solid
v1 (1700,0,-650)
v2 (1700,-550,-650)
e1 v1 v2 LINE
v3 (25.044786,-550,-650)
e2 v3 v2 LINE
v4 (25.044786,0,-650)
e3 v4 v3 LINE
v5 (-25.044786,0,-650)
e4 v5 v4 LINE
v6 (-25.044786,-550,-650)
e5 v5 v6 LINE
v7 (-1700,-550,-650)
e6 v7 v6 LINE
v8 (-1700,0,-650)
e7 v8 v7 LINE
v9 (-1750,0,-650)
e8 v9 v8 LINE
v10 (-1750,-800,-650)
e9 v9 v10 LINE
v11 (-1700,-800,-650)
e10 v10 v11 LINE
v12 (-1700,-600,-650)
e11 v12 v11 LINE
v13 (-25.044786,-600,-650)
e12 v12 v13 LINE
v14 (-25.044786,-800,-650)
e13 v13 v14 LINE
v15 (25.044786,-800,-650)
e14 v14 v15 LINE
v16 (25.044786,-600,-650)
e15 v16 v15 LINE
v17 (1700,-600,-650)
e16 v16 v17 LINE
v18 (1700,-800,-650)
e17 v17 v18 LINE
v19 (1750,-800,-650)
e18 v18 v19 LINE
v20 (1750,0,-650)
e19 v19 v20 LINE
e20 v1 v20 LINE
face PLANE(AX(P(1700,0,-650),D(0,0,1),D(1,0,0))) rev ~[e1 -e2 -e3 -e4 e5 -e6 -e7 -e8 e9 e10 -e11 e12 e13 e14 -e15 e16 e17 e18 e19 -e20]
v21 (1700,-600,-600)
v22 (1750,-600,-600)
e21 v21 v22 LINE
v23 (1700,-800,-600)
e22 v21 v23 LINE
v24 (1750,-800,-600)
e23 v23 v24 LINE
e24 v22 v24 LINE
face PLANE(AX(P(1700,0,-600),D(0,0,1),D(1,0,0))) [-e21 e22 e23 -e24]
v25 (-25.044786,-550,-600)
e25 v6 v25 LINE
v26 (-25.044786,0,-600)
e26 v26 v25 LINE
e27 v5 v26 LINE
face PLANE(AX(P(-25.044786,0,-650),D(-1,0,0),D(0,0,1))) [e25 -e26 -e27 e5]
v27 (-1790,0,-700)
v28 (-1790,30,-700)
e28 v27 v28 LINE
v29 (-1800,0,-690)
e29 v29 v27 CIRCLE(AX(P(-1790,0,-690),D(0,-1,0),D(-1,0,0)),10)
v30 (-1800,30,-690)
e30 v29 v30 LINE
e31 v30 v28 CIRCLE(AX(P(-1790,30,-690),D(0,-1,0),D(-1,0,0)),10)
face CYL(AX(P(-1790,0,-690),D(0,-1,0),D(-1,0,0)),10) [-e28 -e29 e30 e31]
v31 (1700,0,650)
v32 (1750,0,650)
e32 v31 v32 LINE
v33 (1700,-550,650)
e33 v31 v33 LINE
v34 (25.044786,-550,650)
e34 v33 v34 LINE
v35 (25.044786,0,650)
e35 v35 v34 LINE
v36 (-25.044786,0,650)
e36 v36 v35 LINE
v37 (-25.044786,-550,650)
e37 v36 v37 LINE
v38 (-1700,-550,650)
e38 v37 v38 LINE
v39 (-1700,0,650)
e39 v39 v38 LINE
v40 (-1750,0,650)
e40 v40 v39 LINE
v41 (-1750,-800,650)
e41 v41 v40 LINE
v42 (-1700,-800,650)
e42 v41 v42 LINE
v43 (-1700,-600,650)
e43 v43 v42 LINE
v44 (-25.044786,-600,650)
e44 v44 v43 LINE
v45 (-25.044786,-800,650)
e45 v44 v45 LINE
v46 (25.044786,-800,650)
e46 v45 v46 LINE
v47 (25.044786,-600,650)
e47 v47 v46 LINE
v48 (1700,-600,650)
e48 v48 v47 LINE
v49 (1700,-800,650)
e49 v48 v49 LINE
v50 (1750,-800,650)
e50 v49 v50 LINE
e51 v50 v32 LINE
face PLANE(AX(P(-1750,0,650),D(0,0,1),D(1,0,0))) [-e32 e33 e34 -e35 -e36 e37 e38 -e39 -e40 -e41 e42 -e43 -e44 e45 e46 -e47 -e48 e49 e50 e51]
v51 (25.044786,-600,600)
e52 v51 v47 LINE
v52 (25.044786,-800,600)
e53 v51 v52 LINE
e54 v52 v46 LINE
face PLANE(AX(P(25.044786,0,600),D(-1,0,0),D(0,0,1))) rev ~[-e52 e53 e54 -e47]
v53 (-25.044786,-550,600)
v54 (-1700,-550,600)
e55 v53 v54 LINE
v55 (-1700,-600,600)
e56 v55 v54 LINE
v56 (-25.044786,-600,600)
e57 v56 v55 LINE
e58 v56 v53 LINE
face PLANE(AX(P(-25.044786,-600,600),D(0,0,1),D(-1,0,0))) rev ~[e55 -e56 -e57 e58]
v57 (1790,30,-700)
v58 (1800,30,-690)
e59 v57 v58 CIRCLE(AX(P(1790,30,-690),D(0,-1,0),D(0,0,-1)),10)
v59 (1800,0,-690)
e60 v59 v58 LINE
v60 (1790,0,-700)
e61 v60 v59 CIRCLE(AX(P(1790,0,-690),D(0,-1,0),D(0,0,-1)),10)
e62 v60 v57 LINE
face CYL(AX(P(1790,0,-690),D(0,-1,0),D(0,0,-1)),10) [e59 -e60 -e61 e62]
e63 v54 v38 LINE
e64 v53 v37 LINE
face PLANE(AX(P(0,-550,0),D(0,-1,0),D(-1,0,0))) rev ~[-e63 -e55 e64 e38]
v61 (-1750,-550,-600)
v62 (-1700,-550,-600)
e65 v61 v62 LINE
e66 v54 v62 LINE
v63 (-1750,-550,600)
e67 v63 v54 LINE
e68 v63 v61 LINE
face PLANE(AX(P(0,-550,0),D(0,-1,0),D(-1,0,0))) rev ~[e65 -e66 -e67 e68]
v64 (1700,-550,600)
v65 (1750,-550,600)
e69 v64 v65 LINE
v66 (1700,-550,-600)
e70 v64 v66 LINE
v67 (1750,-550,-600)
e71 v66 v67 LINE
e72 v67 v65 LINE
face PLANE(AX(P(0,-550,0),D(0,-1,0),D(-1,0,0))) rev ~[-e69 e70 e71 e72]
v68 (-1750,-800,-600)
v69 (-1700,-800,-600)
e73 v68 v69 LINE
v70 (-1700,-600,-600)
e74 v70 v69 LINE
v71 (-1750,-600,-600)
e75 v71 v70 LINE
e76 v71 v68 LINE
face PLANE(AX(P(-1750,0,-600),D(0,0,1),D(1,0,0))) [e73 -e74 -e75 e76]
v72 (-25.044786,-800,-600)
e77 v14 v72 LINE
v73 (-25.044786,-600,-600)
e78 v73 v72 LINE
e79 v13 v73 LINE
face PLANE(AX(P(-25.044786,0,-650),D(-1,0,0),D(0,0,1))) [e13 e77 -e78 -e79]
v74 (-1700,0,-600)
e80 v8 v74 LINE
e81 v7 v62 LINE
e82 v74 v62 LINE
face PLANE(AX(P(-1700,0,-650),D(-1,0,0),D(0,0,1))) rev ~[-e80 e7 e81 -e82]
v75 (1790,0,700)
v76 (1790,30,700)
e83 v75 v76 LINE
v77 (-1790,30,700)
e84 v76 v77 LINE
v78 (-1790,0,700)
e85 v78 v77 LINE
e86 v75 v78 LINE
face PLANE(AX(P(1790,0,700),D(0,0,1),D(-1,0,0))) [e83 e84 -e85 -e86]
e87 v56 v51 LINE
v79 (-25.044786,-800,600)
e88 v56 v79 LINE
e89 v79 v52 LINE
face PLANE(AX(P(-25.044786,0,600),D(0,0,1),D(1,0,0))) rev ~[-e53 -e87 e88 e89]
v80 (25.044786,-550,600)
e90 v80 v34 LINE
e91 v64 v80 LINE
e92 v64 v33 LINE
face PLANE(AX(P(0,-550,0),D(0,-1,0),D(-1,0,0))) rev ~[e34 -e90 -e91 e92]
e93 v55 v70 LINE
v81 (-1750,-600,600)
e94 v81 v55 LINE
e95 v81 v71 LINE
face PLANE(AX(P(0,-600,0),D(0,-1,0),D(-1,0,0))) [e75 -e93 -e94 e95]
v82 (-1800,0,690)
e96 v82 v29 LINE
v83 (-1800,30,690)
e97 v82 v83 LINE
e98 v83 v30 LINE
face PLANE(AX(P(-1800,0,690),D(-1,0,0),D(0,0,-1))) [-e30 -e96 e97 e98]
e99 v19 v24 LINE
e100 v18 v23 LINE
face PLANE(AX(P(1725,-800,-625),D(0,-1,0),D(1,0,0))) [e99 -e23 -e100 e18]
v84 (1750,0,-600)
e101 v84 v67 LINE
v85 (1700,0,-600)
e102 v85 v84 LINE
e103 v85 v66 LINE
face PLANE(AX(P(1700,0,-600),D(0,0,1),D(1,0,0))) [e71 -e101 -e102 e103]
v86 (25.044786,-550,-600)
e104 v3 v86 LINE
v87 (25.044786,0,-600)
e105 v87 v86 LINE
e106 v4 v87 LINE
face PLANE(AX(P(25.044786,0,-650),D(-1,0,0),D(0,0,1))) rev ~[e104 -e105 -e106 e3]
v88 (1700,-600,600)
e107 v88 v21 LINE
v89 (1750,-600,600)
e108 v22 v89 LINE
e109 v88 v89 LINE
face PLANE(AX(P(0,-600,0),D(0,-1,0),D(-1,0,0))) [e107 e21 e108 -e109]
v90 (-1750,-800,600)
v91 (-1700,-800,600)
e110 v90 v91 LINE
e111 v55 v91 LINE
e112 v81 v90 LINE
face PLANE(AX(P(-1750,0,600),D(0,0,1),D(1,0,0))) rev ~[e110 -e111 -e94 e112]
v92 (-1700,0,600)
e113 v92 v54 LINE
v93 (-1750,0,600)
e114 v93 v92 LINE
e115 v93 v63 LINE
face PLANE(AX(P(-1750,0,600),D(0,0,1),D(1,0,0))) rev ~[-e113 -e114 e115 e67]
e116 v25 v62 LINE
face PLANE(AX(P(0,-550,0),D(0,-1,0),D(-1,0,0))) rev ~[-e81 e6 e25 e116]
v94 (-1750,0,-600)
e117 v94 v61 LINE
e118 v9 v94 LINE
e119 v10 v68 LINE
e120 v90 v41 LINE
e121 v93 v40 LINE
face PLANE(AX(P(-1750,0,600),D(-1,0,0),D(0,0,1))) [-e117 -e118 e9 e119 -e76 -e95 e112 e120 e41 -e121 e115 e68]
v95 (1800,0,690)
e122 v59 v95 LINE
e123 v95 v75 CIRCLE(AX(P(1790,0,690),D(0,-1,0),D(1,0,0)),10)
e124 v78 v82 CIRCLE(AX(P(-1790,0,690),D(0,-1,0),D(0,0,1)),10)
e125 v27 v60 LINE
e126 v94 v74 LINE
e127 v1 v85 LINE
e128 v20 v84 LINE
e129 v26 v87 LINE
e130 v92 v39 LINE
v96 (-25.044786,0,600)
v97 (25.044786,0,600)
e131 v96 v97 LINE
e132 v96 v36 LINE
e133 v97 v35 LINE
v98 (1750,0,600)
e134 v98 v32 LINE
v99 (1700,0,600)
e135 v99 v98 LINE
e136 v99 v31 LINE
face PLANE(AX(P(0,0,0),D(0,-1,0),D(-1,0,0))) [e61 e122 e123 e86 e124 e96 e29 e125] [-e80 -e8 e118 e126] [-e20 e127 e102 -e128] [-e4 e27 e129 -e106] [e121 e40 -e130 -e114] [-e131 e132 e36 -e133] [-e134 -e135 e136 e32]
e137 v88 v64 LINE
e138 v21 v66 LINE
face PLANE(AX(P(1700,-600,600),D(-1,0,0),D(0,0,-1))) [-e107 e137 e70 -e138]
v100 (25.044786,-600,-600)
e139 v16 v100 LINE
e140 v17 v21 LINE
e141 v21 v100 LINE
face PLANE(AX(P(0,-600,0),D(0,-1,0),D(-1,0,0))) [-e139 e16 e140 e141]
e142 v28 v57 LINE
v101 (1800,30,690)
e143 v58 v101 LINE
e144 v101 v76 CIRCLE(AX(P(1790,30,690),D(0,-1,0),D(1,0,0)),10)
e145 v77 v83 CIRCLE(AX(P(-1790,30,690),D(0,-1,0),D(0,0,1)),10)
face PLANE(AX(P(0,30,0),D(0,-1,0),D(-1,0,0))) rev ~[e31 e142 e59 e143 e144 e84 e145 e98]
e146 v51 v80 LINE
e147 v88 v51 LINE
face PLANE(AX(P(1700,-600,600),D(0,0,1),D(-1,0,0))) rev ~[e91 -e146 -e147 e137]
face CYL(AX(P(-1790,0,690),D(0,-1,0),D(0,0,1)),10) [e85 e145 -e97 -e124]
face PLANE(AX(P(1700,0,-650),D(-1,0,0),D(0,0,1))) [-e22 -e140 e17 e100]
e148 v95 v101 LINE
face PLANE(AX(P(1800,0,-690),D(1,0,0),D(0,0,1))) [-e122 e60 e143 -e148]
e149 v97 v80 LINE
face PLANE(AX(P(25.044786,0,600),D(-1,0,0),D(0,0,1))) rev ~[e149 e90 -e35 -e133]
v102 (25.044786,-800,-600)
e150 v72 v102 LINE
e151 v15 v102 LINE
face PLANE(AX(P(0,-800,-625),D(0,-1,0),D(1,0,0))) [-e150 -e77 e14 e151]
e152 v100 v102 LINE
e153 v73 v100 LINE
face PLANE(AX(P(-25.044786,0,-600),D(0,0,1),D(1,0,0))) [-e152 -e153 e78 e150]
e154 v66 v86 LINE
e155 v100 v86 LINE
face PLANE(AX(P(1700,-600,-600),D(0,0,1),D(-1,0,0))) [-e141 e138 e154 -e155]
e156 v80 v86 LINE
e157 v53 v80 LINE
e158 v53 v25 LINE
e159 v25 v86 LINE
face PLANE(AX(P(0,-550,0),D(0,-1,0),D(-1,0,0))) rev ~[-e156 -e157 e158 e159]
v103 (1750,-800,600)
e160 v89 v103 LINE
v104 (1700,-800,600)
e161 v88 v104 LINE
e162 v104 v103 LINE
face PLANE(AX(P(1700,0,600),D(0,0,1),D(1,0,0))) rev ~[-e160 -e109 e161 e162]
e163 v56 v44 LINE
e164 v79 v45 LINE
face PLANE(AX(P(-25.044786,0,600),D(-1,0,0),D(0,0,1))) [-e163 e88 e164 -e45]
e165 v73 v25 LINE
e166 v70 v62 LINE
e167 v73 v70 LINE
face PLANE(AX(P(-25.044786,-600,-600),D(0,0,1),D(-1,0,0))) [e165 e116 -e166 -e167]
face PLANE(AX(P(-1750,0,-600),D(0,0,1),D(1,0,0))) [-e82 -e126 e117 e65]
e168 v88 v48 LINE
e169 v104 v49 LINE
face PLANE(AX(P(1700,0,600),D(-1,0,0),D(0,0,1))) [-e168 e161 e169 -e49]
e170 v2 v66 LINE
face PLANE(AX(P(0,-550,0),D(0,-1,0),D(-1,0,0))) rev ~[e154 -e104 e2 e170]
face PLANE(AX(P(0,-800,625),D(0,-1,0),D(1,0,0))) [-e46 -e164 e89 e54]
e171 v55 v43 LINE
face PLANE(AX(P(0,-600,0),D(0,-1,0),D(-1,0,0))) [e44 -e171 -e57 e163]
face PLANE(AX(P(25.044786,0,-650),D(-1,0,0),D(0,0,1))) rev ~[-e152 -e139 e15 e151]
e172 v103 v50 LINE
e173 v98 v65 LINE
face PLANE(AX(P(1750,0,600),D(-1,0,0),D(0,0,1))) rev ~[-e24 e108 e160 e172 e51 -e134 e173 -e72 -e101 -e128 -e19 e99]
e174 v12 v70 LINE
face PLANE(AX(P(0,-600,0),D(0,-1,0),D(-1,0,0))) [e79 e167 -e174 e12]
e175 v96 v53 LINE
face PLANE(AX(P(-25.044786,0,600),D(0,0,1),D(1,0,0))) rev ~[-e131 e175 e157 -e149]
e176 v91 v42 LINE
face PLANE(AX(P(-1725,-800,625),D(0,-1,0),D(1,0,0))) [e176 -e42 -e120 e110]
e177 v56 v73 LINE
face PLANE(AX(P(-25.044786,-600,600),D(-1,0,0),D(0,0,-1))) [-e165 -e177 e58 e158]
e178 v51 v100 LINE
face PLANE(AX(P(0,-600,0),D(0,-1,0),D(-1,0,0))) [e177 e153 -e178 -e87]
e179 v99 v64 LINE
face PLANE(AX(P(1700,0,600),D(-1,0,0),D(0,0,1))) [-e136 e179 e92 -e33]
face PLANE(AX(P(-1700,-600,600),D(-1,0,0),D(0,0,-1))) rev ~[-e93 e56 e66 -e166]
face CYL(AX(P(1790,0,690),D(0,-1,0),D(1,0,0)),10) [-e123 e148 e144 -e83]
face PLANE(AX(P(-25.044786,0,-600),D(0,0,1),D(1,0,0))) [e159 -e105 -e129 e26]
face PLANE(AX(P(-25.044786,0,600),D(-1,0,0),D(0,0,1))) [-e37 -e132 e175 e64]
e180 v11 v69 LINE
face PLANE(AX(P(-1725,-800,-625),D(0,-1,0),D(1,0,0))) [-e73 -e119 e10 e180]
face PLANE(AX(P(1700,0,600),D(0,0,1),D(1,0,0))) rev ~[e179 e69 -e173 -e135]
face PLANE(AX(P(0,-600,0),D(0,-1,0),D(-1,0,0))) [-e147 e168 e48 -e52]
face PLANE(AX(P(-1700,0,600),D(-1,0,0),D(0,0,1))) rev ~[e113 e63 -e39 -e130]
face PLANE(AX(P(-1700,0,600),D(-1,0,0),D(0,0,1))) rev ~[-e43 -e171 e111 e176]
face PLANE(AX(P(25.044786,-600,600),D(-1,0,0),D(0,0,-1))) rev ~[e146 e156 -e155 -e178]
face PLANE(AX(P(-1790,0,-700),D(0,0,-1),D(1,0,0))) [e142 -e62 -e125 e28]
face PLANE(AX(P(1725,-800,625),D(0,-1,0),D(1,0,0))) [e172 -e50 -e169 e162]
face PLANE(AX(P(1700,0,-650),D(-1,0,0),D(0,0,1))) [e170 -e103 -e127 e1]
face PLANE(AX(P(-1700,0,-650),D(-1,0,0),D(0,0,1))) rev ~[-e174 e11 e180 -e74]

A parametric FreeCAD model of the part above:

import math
import FreeCAD as App
import Part
import Sketcher
from FreeCAD import Vector
Q = App.Units.Quantity

doc = App.newDocument("Part")
body = doc.addObject("PartDesign::Body", "Body")

sketch1 = body.newObject("Sketcher::SketchObject", "Sketch")
sketch1.AttachmentSupport = (doc.getObject("XZ_Plane"), [""])
sketch1.MapMode = "FlatFace"
sketch1.addGeometry([
    Part.LineSegment(Vector(-1790, 700, 0), Vector(1790, 700, 0)),
    Part.ArcOfCircle(Part.Circle(Vector(1790, 690, 0), Vector(0, 0, 1), 10), math.radians(0), math.radians(90)),
    Part.LineSegment(Vector(1800, 690, 0), Vector(1800, -690, 0)),
    Part.ArcOfCircle(Part.Circle(Vector(1790, -690, 0), Vector(0, 0, 1), 10), math.radians(-90), math.radians(0)),
    Part.LineSegment(Vector(1790, -700, 0), Vector(-1790, -700, 0)),
    Part.ArcOfCircle(Part.Circle(Vector(-1790, -690, 0), Vector(0, 0, 1), 10), math.radians(180), math.radians(270)),
    Part.LineSegment(Vector(-1800, -690, 0), Vector(-1800, 690, 0)),
    Part.ArcOfCircle(Part.Circle(Vector(-1790, 690, 0), Vector(0, 0, 1), 10), math.radians(90), math.radians(180)),
], False)
sketch1.addConstraint([
    Sketcher.Constraint("Tangent", 0, 2, 1, 2),
    Sketcher.Constraint("Tangent", 1, 1, 2, 1),
    Sketcher.Constraint("Tangent", 2, 2, 3, 2),
    Sketcher.Constraint("Tangent", 3, 1, 4, 1),
    Sketcher.Constraint("Tangent", 4, 2, 5, 2),
    Sketcher.Constraint("Tangent", 5, 1, 6, 1),
    Sketcher.Constraint("Tangent", 6, 2, 7, 2),
    Sketcher.Constraint("Tangent", 7, 1, 0, 1),
    Sketcher.Constraint("Horizontal", 0),
    Sketcher.Constraint("Vertical", 2),
    Sketcher.Constraint("Horizontal", 4),
    Sketcher.Constraint("Vertical", 6),
    Sketcher.Constraint("Equal", 1, 3),
    Sketcher.Constraint("Equal", 3, 5),
    Sketcher.Constraint("Equal", 5, 7),
    Sketcher.Constraint("Symmetric", 1, 3, 5, 3, -1, 1),
    Sketcher.Constraint("Radius", 1, Q("10 mm")),
    Sketcher.Constraint("DistanceX", 0, 1, 0, 2, Q("3580 mm")),
    Sketcher.Constraint("DistanceY", 2, 2, 2, 1, Q("1380 mm")),
])
pad1 = body.newObject("PartDesign::Pad", "Pad")
pad1.Profile = sketch1
pad1.Length = 30
pad1.Reversed = True

sketch2 = body.newObject("Sketcher::SketchObject", "Sketch001")
sketch2.AttachmentSupport = (doc.getObject("XZ_Plane"), [""])
sketch2.MapMode = "FlatFace"
sketch2.addGeometry([
    Part.LineSegment(Vector(-1750, 650, 0), Vector(-1750, 600, 0)),
    Part.LineSegment(Vector(-1750, 600, 0), Vector(-1700, 600, 0)),
    Part.LineSegment(Vector(-1700, 600, 0), Vector(-1700, 650, 0)),
    Part.LineSegment(Vector(-1700, 650, 0), Vector(-1750, 650, 0)),
    Part.LineSegment(Vector(-1750, -600, 0), Vector(-1750, -650, 0)),
    Part.LineSegment(Vector(-1750, -650, 0), Vector(-1700, -650, 0)),
    Part.LineSegment(Vector(-1700, -650, 0), Vector(-1700, -600, 0)),
    Part.LineSegment(Vector(-1700, -600, 0), Vector(-1750, -600, 0)),
    Part.LineSegment(Vector(1700, -600, 0), Vector(1700, -650, 0)),
    Part.LineSegment(Vector(1700, -650, 0), Vector(1750, -650, 0)),
    Part.LineSegment(Vector(1750, -650, 0), Vector(1750, -600, 0)),
    Part.LineSegment(Vector(1750, -600, 0), Vector(1700, -600, 0)),
    Part.LineSegment(Vector(1700, 650, 0), Vector(1700, 600, 0)),
    Part.LineSegment(Vector(1700, 600, 0), Vector(1750, 600, 0)),
    Part.LineSegment(Vector(1750, 600, 0), Vector(1750, 650, 0)),
    Part.LineSegment(Vector(1750, 650, 0), Vector(1700, 650, 0)),
    Part.LineSegment(Vector(-25, -600, 0), Vector(-25, -650, 0)),
    Part.LineSegment(Vector(-25, -650, 0), Vector(25, -650, 0)),
    Part.LineSegment(Vector(25, -650, 0), Vector(25, -600, 0)),
    Part.LineSegment(Vector(25, -600, 0), Vector(-25, -600, 0)),
    Part.LineSegment(Vector(-25, 650, 0), Vector(-25, 600, 0)),
    Part.LineSegment(Vector(-25, 600, 0), Vector(25, 600, 0)),
    Part.LineSegment(Vector(25, 600, 0), Vector(25, 650, 0)),
    Part.LineSegment(Vector(25, 650, 0), Vector(-25, 650, 0)),
], False)
sketch2.addConstraint([
    Sketcher.Constraint("Coincident", 0, 2, 1, 1),
    Sketcher.Constraint("Coincident", 1, 2, 2, 1),
    Sketcher.Constraint("Coincident", 2, 2, 3, 1),
    Sketcher.Constraint("Coincident", 3, 2, 0, 1),
    Sketcher.Constraint("Coincident", 4, 2, 5, 1),
    Sketcher.Constraint("Coincident", 5, 2, 6, 1),
    Sketcher.Constraint("Coincident", 6, 2, 7, 1),
    Sketcher.Constraint("Coincident", 7, 2, 4, 1),
    Sketcher.Constraint("Coincident", 8, 2, 9, 1),
    Sketcher.Constraint("Coincident", 9, 2, 10, 1),
    Sketcher.Constraint("Coincident", 10, 2, 11, 1),
    Sketcher.Constraint("Coincident", 11, 2, 8, 1),
    Sketcher.Constraint("Coincident", 12, 2, 13, 1),
    Sketcher.Constraint("Coincident", 13, 2, 14, 1),
    Sketcher.Constraint("Coincident", 14, 2, 15, 1),
    Sketcher.Constraint("Coincident", 15, 2, 12, 1),
    Sketcher.Constraint("Coincident", 16, 2, 17, 1),
    Sketcher.Constraint("Coincident", 17, 2, 18, 1),
    Sketcher.Constraint("Coincident", 18, 2, 19, 1),
    Sketcher.Constraint("Coincident", 19, 2, 16, 1),
    Sketcher.Constraint("Coincident", 20, 2, 21, 1),
    Sketcher.Constraint("Coincident", 21, 2, 22, 1),
    Sketcher.Constraint("Coincident", 22, 2, 23, 1),
    Sketcher.Constraint("Coincident", 23, 2, 20, 1),
    Sketcher.Constraint("Vertical", 0),
    Sketcher.Constraint("Horizontal", 1),
    Sketcher.Constraint("Vertical", 2),
    Sketcher.Constraint("Horizontal", 3),
    Sketcher.Constraint("Vertical", 4),
    Sketcher.Constraint("Horizontal", 5),
    Sketcher.Constraint("Vertical", 6),
    Sketcher.Constraint("Horizontal", 7),
    Sketcher.Constraint("Vertical", 8),
    Sketcher.Constraint("Horizontal", 9),
    Sketcher.Constraint("Vertical", 10),
    Sketcher.Constraint("Horizontal", 11),
    Sketcher.Constraint("Vertical", 12),
    Sketcher.Constraint("Horizontal", 13),
    Sketcher.Constraint("Vertical", 14),
    Sketcher.Constraint("Horizontal", 15),
    Sketcher.Constraint("Vertical", 16),
    Sketcher.Constraint("Horizontal", 17),
    Sketcher.Constraint("Vertical", 18),
    Sketcher.Constraint("Horizontal", 19),
    Sketcher.Constraint("Vertical", 20),
    Sketcher.Constraint("Horizontal", 21),
    Sketcher.Constraint("Vertical", 22),
    Sketcher.Constraint("Horizontal", 23),
    Sketcher.Constraint("Symmetric", 2, 2, 8, 2, -1, 1),
    Sketcher.Constraint("Symmetric", 0, 2, 10, 2, -1, 1),
    Sketcher.Constraint("Symmetric", 6, 2, 12, 2, -1, 1),
    Sketcher.Constraint("Symmetric", 4, 2, 14, 2, -1, 1),
    Sketcher.Constraint("Symmetric", 18, 2, 20, 2, -1, 1),
    Sketcher.Constraint("Symmetric", 16, 2, 22, 2, -1, 1),
    Sketcher.Constraint("Symmetric", 5, 2, 8, 2, -2),
    Sketcher.Constraint("Symmetric", 7, 2, 10, 2, -2),
    Sketcher.Constraint("Horizontal", 9, 2, 16, 2),
    Sketcher.Constraint("Horizontal", 11, 2, 18, 2),
    Sketcher.Constraint("Vertical", 19, 2, 20, 2),
    Sketcher.Constraint("Equal", 15, 0),
    Sketcher.Constraint("DistanceX", 1, 1, 1, 2, Q("50 mm")),
    Sketcher.Constraint("DistanceX", 0, 2, -1, 1, Q("1750 mm")),
    Sketcher.Constraint("DistanceY", -1, 1, 0, 2, Q("600 mm")),
    Sketcher.Constraint("DistanceX", 17, 1, 17, 2, Q("50.089571 mm")),
])
pad2 = body.newObject("PartDesign::Pad", "Pad001")
pad2.Profile = sketch2
pad2.Length = 800

sketch3 = body.newObject("Sketcher::SketchObject", "Sketch002")
sketch3.AttachmentSupport = (doc.getObject("XZ_Plane"), [""])
sketch3.MapMode = "FlatFace"
sketch3.AttachmentOffset = App.Placement(Vector(0, 0, 600), App.Rotation())
sketch3.addGeometry([
    Part.LineSegment(Vector(-1750, 650, 0), Vector(-1750, -650, 0)),
    Part.LineSegment(Vector(-1750, -650, 0), Vector(1750, -650, 0)),
    Part.LineSegment(Vector(1750, -650, 0), Vector(1750, 650, 0)),
    Part.LineSegment(Vector(1750, 650, 0), Vector(-1750, 650, 0)),
    Part.LineSegment(Vector(25, 600, 0), Vector(1700, 600, 0)),
    Part.LineSegment(Vector(1700, 600, 0), Vector(1700, -600, 0)),
    Part.LineSegment(Vector(1700, -600, 0), Vector(25, -600, 0)),
    Part.LineSegment(Vector(25, -600, 0), Vector(25, 600, 0)),
    Part.LineSegment(Vector(-1700, 600, 0), Vector(-25, 600, 0)),
    Part.LineSegment(Vector(-25, 600, 0), Vector(-25, -600, 0)),
    Part.LineSegment(Vector(-25, -600, 0), Vector(-1700, -600, 0)),
    Part.LineSegment(Vector(-1700, -600, 0), Vector(-1700, 600, 0)),
], False)
sketch3.addConstraint([
    Sketcher.Constraint("Coincident", 0, 2, 1, 1),
    Sketcher.Constraint("Coincident", 1, 2, 2, 1),
    Sketcher.Constraint("Coincident", 2, 2, 3, 1),
    Sketcher.Constraint("Coincident", 3, 2, 0, 1),
    Sketcher.Constraint("Coincident", 4, 2, 5, 1),
    Sketcher.Constraint("Coincident", 5, 2, 6, 1),
    Sketcher.Constraint("Coincident", 6, 2, 7, 1),
    Sketcher.Constraint("Coincident", 7, 2, 4, 1),
    Sketcher.Constraint("Coincident", 8, 2, 9, 1),
    Sketcher.Constraint("Coincident", 9, 2, 10, 1),
    Sketcher.Constraint("Coincident", 10, 2, 11, 1),
    Sketcher.Constraint("Coincident", 11, 2, 8, 1),
    Sketcher.Constraint("Vertical", 0),
    Sketcher.Constraint("Horizontal", 1),
    Sketcher.Constraint("Vertical", 2),
    Sketcher.Constraint("Horizontal", 3),
    Sketcher.Constraint("Horizontal", 4),
    Sketcher.Constraint("Vertical", 5),
    Sketcher.Constraint("Horizontal", 6),
    Sketcher.Constraint("Vertical", 7),
    Sketcher.Constraint("Horizontal", 8),
    Sketcher.Constraint("Vertical", 9),
    Sketcher.Constraint("Horizontal", 10),
    Sketcher.Constraint("Vertical", 11),
    Sketcher.Constraint("Symmetric", 0, 2, 2, 2, -1, 1),
    Sketcher.Constraint("Symmetric", 6, 2, 8, 2, -1, 1),
    Sketcher.Constraint("Symmetric", 4, 2, 10, 2, -1, 1),
    Sketcher.Constraint("Horizontal", 7, 2, 8, 2),
    Sketcher.Constraint("DistanceX", 1, 1, 1, 2, Q("3500 mm")),
    Sketcher.Constraint("DistanceY", 0, 2, 0, 1, Q("1300 mm")),
    Sketcher.Constraint("DistanceY", 5, 2, 5, 1, Q("1200 mm")),
    Sketcher.Constraint("DistanceX", -1, 1, 4, 2, Q("1700 mm")),
    Sketcher.Constraint("DistanceX", 4, 1, 4, 2, Q("1674.955214 mm")),
])
pad3 = body.newObject("PartDesign::Pad", "Pad002")
pad3.Profile = sketch3
pad3.Length = 50
pad3.Reversed = True

doc.recompute()
